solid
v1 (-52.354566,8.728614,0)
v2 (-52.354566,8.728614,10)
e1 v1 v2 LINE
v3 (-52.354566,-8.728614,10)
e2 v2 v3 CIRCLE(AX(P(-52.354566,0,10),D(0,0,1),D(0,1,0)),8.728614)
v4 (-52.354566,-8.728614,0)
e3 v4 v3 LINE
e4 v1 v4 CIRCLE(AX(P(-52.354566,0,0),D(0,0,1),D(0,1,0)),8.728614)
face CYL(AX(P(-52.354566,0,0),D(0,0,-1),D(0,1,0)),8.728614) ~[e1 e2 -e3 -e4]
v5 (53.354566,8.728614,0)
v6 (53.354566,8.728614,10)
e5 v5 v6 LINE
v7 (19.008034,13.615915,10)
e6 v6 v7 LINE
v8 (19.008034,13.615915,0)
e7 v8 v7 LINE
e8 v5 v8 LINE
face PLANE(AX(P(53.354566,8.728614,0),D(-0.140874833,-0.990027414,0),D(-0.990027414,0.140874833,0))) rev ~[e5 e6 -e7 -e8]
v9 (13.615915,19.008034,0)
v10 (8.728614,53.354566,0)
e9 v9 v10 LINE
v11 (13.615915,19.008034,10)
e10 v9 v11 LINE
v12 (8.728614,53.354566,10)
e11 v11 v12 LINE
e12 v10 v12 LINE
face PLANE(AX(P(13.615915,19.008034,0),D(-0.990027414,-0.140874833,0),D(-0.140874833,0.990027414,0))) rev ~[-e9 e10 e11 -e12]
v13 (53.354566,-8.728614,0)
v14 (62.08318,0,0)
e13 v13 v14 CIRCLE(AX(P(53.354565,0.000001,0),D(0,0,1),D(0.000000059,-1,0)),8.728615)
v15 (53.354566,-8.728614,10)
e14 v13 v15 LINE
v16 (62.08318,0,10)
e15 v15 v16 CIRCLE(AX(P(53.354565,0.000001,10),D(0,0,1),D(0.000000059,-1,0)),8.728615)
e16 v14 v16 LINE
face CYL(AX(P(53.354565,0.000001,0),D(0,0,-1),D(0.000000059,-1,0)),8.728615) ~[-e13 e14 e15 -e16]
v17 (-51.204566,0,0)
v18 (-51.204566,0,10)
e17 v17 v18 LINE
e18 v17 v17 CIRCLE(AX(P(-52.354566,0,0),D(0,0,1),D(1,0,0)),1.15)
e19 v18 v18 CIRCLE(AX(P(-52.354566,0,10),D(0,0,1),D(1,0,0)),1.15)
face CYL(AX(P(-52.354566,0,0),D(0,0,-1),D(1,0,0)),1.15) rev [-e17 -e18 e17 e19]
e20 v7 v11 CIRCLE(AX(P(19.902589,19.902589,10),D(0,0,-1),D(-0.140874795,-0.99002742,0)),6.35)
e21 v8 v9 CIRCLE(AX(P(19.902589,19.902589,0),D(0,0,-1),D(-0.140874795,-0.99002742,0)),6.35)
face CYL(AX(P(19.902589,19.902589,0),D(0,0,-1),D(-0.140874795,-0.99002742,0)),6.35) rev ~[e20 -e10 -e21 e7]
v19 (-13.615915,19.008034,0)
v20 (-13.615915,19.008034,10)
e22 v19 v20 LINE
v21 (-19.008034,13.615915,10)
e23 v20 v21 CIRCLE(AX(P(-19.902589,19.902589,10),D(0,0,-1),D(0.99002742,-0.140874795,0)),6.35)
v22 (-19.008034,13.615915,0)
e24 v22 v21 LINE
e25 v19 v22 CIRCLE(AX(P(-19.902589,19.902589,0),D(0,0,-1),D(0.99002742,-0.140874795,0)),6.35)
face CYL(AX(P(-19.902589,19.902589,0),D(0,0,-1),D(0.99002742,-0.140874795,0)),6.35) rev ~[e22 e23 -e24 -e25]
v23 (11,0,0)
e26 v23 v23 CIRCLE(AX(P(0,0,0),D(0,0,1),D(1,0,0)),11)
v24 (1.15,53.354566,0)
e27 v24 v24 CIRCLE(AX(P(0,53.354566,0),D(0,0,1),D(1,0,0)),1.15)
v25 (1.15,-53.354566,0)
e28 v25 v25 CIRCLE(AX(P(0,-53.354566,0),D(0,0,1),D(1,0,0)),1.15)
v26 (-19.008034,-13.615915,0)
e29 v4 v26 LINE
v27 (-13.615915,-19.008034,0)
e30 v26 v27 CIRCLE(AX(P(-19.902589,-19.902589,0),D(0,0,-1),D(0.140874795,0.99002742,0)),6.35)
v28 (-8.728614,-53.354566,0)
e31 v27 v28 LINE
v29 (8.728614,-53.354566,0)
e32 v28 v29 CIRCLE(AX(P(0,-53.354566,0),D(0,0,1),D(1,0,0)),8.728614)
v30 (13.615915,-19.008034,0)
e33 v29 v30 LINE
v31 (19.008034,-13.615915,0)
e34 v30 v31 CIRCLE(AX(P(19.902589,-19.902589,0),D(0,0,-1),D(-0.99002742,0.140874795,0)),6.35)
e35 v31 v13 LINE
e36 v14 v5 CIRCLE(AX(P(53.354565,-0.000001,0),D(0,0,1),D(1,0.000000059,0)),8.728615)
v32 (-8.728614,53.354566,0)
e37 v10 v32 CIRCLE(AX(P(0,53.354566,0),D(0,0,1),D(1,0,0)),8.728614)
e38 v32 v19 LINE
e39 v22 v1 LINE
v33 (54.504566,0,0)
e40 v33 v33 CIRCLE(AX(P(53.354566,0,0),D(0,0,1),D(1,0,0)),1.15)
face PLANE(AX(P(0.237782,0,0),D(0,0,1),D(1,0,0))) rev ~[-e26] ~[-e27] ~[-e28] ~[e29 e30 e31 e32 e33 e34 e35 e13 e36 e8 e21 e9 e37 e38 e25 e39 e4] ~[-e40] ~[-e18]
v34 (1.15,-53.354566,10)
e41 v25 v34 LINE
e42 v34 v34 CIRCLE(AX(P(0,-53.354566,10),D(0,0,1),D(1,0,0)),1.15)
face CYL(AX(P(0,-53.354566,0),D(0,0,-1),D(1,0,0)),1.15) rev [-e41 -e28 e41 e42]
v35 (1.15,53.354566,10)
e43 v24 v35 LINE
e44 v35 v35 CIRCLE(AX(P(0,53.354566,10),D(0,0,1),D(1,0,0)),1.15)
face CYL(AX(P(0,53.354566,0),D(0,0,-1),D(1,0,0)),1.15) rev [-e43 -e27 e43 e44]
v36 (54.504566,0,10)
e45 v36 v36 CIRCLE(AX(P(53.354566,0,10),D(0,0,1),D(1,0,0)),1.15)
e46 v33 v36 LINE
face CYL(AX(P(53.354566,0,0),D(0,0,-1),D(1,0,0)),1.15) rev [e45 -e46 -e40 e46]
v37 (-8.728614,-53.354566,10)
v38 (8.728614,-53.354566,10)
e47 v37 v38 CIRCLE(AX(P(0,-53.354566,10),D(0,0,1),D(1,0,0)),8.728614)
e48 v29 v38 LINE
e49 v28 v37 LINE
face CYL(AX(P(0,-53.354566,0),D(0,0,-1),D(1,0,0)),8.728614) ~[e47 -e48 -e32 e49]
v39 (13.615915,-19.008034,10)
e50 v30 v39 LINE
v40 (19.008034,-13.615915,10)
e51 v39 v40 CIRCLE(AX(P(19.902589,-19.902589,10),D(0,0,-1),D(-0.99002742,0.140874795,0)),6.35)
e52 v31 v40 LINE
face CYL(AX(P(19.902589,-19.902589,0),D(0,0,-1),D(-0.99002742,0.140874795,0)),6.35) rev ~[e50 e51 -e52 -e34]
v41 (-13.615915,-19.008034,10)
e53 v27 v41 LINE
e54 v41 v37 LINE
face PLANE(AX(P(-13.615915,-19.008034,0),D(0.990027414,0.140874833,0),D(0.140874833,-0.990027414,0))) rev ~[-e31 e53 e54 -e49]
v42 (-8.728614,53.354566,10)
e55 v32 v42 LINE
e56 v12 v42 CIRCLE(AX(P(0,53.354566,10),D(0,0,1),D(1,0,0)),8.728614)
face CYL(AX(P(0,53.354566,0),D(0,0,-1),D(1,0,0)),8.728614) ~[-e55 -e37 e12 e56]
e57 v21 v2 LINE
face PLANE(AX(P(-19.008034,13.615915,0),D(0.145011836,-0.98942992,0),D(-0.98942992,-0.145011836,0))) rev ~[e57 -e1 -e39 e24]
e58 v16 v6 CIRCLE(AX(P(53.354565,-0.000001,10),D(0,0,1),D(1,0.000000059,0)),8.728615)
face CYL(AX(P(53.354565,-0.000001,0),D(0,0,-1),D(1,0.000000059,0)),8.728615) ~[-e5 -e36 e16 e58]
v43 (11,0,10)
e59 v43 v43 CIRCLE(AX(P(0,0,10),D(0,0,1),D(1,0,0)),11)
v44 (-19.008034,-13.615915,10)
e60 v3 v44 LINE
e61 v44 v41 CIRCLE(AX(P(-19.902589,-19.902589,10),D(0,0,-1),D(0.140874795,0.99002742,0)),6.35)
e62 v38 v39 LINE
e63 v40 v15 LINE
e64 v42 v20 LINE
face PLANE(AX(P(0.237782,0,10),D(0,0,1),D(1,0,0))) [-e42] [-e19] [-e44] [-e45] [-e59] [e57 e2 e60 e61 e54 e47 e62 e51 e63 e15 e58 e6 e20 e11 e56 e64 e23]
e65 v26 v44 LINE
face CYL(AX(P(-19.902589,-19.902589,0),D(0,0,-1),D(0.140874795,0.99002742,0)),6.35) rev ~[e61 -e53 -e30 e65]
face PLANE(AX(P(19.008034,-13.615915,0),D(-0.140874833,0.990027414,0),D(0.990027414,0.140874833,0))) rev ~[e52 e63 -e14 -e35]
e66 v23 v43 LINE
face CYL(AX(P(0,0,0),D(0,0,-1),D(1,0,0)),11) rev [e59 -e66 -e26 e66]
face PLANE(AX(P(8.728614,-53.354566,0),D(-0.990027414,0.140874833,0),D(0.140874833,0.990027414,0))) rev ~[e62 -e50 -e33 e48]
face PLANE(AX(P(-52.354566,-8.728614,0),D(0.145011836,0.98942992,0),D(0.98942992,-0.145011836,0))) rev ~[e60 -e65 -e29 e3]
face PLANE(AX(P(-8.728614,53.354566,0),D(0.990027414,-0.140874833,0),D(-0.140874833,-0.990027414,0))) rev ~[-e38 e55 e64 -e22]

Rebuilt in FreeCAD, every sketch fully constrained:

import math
import FreeCAD as App
import Part
import Sketcher
Q = App.Units.Quantity

doc = App.newDocument("Part")
body = doc.addObject("PartDesign::Body", "Body")

# Sketch on XY plane
sketch1 = body.newObject("Sketcher::SketchObject", "Sketch")
sketch1.AttachmentSupport = (doc.getObject("XY_Plane"), [""])
sketch1.MapMode = "FlatFace"
sketch1.addGeometry([
    Part.LineSegment(App.Vector(13.6, 19, 0), App.Vector(8.7, 53.4, 0)),  # 0
    Part.ArcOfCircle(Part.Circle(App.Vector(0, 53.4, 0), App.Vector(0, 0, 1), 8.7), math.radians(0), math.radians(180)),  # 1
    Part.LineSegment(App.Vector(-8.7, 53.4, 0), App.Vector(-13.6, 19, 0)),  # 2
    Part.ArcOfCircle(Part.Circle(App.Vector(-19.9, 19.9, 0), App.Vector(0, 0, 1), 6.3), math.radians(-82), math.radians(-8)),  # 3
    Part.LineSegment(App.Vector(-19, 13.6, 0), App.Vector(-52.4, 8.7, 0)),  # 4
    Part.ArcOfCircle(Part.Circle(App.Vector(-52.4, 0, 0), App.Vector(0, 0, 1), 8.7), math.radians(90), math.radians(270)),  # 5
    Part.LineSegment(App.Vector(-52.4, -8.7, 0), App.Vector(-19, -13.6, 0)),  # 6
    Part.ArcOfCircle(Part.Circle(App.Vector(-19.9, -19.9, 0), App.Vector(0, 0, 1), 6.3), math.radians(8), math.radians(82)),  # 7
    Part.LineSegment(App.Vector(-13.6, -19, 0), App.Vector(-8.7, -53.4, 0)),  # 8
    Part.ArcOfCircle(Part.Circle(App.Vector(0, -53.4, 0), App.Vector(0, 0, 1), 8.7), math.radians(180), math.radians(360)),  # 9
    Part.LineSegment(App.Vector(8.7, -53.4, 0), App.Vector(13.6, -19, 0)),  # 10
    Part.ArcOfCircle(Part.Circle(App.Vector(19.9, -19.9, 0), App.Vector(0, 0, 1), 6.3), math.radians(98), math.radians(172)),  # 11
    Part.LineSegment(App.Vector(19, -13.6, 0), App.Vector(53.4, -8.7, 0)),  # 12
    Part.ArcOfCircle(Part.Circle(App.Vector(53.4, 0, 0), App.Vector(0, 0, 1), 8.7), math.radians(-90), math.radians(0)),  # 13
    Part.ArcOfCircle(Part.Circle(App.Vector(53.4, 0, 0), App.Vector(0, 0, 1), 8.7), math.radians(0), math.radians(90)),  # 14
    Part.LineSegment(App.Vector(53.4, 8.7, 0), App.Vector(19, 13.6, 0)),  # 15
    Part.ArcOfCircle(Part.Circle(App.Vector(19.9, 19.9, 0), App.Vector(0, 0, 1), 6.3), math.radians(-172), math.radians(-98)),  # 16
    Part.Circle(App.Vector(0, -53.4, 0), App.Vector(0, 0, 1), 1.1),  # 17
    Part.Circle(App.Vector(-52.4, 0, 0), App.Vector(0, 0, 1), 1.1),  # 18
    Part.Circle(App.Vector(0, 0, 0), App.Vector(0, 0, 1), 11),  # 19
    Part.Circle(App.Vector(0, 53.4, 0), App.Vector(0, 0, 1), 1.1),  # 20
    Part.Circle(App.Vector(53.4, 0, 0), App.Vector(0, 0, 1), 1.1),  # 21
], False)
sketch1.addConstraint([
    Sketcher.Constraint("Coincident", 0, 2, 1, 1),
    Sketcher.Constraint("Coincident", 1, 2, 2, 1),
    Sketcher.Constraint("Tangent", 2, 2, 3, 2),
    Sketcher.Constraint("Coincident", 3, 1, 4, 1),
    Sketcher.Constraint("Coincident", 4, 2, 5, 1),
    Sketcher.Constraint("Coincident", 5, 2, 6, 1),
    Sketcher.Constraint("Coincident", 6, 2, 7, 2),
    Sketcher.Constraint("Tangent", 7, 1, 8, 1),
    Sketcher.Constraint("Coincident", 8, 2, 9, 1),
    Sketcher.Constraint("Coincident", 9, 2, 10, 1),
    Sketcher.Constraint("Tangent", 10, 2, 11, 2),
    Sketcher.Constraint("Tangent", 11, 1, 12, 1),
    Sketcher.Constraint("Coincident", 12, 2, 13, 1),
    Sketcher.Constraint("Tangent", 13, 2, 14, 1),
    Sketcher.Constraint("Coincident", 14, 2, 15, 1),
    Sketcher.Constraint("Tangent", 15, 2, 16, 2),
    Sketcher.Constraint("Tangent", 16, 1, 0, 1),
    Sketcher.Constraint("Coincident", 19, 3, -1, 1),
    Sketcher.Constraint("Coincident", 17, 3, 9, 3),
    Sketcher.Constraint("Coincident", 18, 3, 5, 3),
    Sketcher.Constraint("Coincident", 20, 3, 1, 3),
    Sketcher.Constraint("Coincident", 21, 3, 13, 3),
    Sketcher.Constraint("Equal", 1, 5),
    Sketcher.Constraint("Equal", 3, 7),
    Sketcher.Constraint("Equal", 5, 9),
    Sketcher.Constraint("Equal", 7, 11),
    Sketcher.Constraint("Equal", 9, 13),
    Sketcher.Constraint("Equal", 13, 14),
    Sketcher.Constraint("Equal", 11, 16),
    Sketcher.Constraint("Equal", 17, 18),
    Sketcher.Constraint("Equal", 18, 20),
    Sketcher.Constraint("Equal", 20, 21),
    Sketcher.Constraint("Symmetric", 1, 3, 9, 3, -1, 1),
    Sketcher.Constraint("Symmetric", 3, 3, 11, 3, -1, 1),
    Sketcher.Constraint("Symmetric", 7, 3, 16, 3, -1, 1),
    Sketcher.Constraint("Symmetric", 7, 3, 11, 3, -2),
    Sketcher.Constraint("Symmetric", 0, 2, 1, 2, -2),
    Sketcher.Constraint("Symmetric", 4, 2, 5, 2, -1),
    Sketcher.Constraint("Symmetric", 12, 2, 14, 2, -1),
    Sketcher.Constraint("PointOnObject", 13, 2, -1),
    Sketcher.Constraint("Parallel", 0, 8),
    Sketcher.Constraint("Parallel", 2, 10),
    Sketcher.Constraint("Perpendicular", 8, 12),
    Sketcher.Constraint("Horizontal", 20, 3, 0, 2),
    Sketcher.Constraint("Horizontal", 6, 2, 11, 1),
    Sketcher.Constraint("Horizontal", 3, 1, 15, 2),
    Sketcher.Constraint("Vertical", 18, 3, 4, 2),
    Sketcher.Constraint("Vertical", 21, 3, 12, 2),
    Sketcher.Constraint("Equal", 10, 12),
    Sketcher.Constraint("Diameter", 19, Q("22 mm")),
    Sketcher.Constraint("Diameter", 17, Q("2.3 mm")),
    Sketcher.Constraint("Radius", 3, Q("6.35 mm")),
    Sketcher.Constraint("Radius", 1, Q("8.728614 mm")),
    Sketcher.Constraint("DistanceX", 2, 2, 1, 2, Q("4.887301 mm")),
    Sketcher.Constraint("DistanceX", -1, 1, 13, 2, Q("62.08318 mm")),
    Sketcher.Constraint("DistanceX", 4, 2, 2, 2, Q("38.738651 mm")),
])
pad1 = body.newObject("PartDesign::Pad", "Pad")
pad1.Profile = sketch1
pad1.Length = 10

doc.recompute()
